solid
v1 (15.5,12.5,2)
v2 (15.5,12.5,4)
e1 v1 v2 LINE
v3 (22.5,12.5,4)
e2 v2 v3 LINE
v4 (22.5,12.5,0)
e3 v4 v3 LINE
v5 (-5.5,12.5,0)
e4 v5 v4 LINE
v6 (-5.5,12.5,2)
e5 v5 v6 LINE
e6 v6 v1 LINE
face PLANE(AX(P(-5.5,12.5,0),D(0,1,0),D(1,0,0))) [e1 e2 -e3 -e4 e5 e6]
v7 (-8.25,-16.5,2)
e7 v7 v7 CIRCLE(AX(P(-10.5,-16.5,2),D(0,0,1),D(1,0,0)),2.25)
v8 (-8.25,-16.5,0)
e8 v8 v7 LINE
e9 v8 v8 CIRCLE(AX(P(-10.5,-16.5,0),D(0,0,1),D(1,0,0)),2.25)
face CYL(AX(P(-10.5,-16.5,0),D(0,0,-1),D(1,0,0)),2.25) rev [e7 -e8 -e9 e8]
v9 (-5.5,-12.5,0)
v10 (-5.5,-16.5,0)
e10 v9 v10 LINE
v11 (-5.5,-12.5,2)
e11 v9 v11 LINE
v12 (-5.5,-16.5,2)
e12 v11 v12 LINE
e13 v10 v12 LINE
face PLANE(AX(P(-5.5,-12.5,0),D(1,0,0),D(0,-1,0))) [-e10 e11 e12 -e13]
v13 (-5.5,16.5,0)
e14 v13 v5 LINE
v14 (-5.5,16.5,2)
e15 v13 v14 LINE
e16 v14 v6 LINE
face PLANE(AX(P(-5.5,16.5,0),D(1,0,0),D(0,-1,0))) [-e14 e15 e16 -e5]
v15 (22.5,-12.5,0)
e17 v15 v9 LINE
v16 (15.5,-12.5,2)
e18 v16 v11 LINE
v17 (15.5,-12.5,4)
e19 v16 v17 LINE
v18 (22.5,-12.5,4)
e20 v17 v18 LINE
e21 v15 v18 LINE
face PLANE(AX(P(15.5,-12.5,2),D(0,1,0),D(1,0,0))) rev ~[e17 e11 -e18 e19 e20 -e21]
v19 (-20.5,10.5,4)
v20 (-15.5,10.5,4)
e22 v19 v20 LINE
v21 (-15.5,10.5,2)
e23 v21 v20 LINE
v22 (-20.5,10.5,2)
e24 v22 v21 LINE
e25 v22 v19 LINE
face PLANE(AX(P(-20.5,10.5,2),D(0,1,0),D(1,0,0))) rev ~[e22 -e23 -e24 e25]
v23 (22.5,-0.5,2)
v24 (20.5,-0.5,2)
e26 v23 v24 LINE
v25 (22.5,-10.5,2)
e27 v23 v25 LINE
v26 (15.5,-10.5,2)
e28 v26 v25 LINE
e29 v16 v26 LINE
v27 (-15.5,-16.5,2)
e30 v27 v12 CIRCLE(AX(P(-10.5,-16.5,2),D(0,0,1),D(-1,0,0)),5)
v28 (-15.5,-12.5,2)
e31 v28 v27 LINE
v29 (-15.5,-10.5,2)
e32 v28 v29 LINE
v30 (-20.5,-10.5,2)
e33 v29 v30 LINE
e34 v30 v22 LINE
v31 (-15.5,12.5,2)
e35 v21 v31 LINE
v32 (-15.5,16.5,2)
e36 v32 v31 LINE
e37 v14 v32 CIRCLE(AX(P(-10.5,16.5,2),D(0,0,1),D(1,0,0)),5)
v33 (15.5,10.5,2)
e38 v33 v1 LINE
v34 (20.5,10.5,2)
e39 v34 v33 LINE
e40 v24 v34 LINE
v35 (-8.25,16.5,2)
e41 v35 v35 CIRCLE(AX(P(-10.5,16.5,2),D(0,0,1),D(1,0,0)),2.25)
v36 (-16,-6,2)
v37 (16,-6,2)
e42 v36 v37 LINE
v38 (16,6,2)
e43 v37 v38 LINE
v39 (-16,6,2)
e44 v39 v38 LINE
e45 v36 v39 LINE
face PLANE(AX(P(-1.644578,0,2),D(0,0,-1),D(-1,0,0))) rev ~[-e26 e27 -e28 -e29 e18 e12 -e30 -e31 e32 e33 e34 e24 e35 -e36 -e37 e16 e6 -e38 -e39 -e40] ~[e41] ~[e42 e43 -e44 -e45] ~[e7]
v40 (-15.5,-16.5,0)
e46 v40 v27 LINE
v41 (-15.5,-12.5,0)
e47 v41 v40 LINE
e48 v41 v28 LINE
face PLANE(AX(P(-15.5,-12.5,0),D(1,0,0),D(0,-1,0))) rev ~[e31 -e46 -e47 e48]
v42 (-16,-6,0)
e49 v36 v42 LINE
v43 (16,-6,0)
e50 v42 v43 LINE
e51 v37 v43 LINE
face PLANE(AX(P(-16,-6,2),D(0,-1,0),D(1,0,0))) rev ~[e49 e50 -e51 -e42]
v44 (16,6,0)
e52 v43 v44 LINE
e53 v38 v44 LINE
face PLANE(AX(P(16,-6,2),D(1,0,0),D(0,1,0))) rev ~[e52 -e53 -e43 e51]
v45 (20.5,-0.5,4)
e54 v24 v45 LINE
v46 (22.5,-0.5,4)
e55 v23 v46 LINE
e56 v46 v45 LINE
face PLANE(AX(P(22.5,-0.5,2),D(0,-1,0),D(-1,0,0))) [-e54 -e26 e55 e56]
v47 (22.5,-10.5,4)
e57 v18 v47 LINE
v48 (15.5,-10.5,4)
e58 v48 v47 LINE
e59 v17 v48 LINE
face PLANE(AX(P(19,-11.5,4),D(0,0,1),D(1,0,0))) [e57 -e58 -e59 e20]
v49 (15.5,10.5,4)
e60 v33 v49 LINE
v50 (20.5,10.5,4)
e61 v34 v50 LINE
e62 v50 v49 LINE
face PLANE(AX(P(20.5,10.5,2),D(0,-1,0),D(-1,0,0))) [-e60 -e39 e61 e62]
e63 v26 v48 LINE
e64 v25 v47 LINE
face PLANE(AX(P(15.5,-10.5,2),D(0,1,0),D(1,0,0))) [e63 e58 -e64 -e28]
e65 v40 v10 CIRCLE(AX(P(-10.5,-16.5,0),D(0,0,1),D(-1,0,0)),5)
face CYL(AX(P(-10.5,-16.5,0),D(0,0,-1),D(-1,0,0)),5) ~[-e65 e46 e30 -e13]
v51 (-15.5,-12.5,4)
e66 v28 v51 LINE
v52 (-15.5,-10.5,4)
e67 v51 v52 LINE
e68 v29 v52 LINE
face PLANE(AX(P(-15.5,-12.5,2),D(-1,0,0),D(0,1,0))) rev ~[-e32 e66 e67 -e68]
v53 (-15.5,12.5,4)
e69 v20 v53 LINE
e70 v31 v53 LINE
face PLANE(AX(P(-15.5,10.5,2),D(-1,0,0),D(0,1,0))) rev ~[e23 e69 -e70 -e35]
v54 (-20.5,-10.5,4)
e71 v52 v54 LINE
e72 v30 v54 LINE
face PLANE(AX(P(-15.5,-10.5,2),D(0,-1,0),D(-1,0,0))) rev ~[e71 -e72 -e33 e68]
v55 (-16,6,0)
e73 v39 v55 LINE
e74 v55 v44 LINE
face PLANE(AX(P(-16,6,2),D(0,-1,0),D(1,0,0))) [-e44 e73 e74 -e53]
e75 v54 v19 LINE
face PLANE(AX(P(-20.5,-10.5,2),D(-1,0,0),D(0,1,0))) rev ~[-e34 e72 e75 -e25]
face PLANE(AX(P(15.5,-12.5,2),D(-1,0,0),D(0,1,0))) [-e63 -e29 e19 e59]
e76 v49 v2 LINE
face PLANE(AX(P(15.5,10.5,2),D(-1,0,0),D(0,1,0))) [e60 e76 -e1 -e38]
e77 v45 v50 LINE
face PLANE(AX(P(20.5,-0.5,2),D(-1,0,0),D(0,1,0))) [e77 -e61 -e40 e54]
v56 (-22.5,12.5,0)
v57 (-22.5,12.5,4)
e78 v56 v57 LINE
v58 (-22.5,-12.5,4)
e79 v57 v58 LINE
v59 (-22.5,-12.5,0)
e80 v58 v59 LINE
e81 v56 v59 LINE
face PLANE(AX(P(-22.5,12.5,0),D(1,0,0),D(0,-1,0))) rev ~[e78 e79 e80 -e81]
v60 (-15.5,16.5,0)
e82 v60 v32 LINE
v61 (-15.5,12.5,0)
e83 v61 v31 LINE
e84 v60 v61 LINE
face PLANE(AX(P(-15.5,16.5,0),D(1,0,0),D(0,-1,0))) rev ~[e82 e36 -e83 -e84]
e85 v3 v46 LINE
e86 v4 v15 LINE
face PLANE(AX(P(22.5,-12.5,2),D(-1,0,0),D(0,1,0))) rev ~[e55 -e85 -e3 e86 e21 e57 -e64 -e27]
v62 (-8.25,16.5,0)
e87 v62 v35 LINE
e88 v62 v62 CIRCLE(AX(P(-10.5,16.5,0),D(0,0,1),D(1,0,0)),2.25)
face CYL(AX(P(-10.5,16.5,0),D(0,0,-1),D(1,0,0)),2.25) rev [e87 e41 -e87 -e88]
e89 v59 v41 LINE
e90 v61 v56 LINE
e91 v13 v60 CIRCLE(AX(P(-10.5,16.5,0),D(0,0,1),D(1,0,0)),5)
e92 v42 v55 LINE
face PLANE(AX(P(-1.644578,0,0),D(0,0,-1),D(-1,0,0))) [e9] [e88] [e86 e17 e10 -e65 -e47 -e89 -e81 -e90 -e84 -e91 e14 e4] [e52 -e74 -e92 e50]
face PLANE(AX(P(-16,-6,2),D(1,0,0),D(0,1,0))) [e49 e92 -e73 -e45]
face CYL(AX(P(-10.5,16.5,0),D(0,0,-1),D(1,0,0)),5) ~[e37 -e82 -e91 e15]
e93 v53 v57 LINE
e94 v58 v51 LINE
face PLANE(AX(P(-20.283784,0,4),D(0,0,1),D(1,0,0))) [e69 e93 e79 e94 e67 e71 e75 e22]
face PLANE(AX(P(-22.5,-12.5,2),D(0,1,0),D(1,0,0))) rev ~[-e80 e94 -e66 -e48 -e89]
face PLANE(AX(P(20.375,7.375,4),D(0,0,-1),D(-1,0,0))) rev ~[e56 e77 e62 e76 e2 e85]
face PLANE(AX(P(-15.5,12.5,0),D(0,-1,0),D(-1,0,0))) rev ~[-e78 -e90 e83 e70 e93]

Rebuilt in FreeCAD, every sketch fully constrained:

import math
import FreeCAD as App
import Part
import Sketcher

V = App.Vector

doc = App.newDocument("Part")
body = doc.addObject("PartDesign::Body", "Body")

sketch1 = body.newObject("Sketcher::SketchObject", "Sketch")
sketch1.AttachmentSupport = (doc.getObject("XY_Plane"), [""])
sketch1.MapMode = "FlatFace"
sketch1.addGeometry(Part.LineSegment(V(22.5, -12.5, 0), V(22.5, 12.5, 0)), False)
sketch1.addGeometry(Part.LineSegment(V(22.5, 12.5, 0), V(-5.5, 12.5, 0)), False)
sketch1.addGeometry(Part.LineSegment(V(-5.5, 12.5, 0), V(-5.5, 16.5, 0)), False)
sketch1.addGeometry(Part.ArcOfCircle(Part.Circle(V(-10.5, 16.5, 0), V(0, 0, 1), 5), math.radians(0), math.radians(180)), False)
sketch1.addGeometry(Part.LineSegment(V(-15.5, 16.5, 0), V(-15.5, 12.5, 0)), False)
sketch1.addGeometry(Part.LineSegment(V(-15.5, 12.5, 0), V(-22.5, 12.5, 0)), False)
sketch1.addGeometry(Part.LineSegment(V(-22.5, 12.5, 0), V(-22.5, -12.5, 0)), False)
sketch1.addGeometry(Part.LineSegment(V(-22.5, -12.5, 0), V(-15.5, -12.5, 0)), False)
sketch1.addGeometry(Part.LineSegment(V(-15.5, -12.5, 0), V(-15.5, -16.5, 0)), False)
sketch1.addGeometry(Part.ArcOfCircle(Part.Circle(V(-10.5, -16.5, 0), V(0, 0, 1), 5), math.radians(180), math.radians(360)), False)
sketch1.addGeometry(Part.LineSegment(V(-5.5, -16.5, 0), V(-5.5, -12.5, 0)), False)
sketch1.addGeometry(Part.LineSegment(V(-5.5, -12.5, 0), V(22.5, -12.5, 0)), False)
sketch1.addGeometry(Part.Circle(V(-10.5, -16.5, 0), V(0, 0, 1), 2.25), False)
sketch1.addGeometry(Part.Circle(V(-10.5, 16.5, 0), V(0, 0, 1), 2.25), False)
sketch1.addConstraint(Sketcher.Constraint("Coincident", 0, 2, 1, 1))
sketch1.addConstraint(Sketcher.Constraint("Coincident", 1, 2, 2, 1))
sketch1.addConstraint(Sketcher.Constraint("Tangent", 2, 2, 3, 1))
sketch1.addConstraint(Sketcher.Constraint("Tangent", 3, 2, 4, 1))
sketch1.addConstraint(Sketcher.Constraint("Coincident", 4, 2, 5, 1))
sketch1.addConstraint(Sketcher.Constraint("Coincident", 5, 2, 6, 1))
sketch1.addConstraint(Sketcher.Constraint("Coincident", 6, 2, 7, 1))
sketch1.addConstraint(Sketcher.Constraint("Coincident", 7, 2, 8, 1))
sketch1.addConstraint(Sketcher.Constraint("Tangent", 8, 2, 9, 1))
sketch1.addConstraint(Sketcher.Constraint("Tangent", 9, 2, 10, 1))
sketch1.addConstraint(Sketcher.Constraint("Coincident", 10, 2, 11, 1))
sketch1.addConstraint(Sketcher.Constraint("Coincident", 11, 2, 0, 1))
sketch1.addConstraint(Sketcher.Constraint("Vertical", 0))
sketch1.addConstraint(Sketcher.Constraint("Horizontal", 1))
sketch1.addConstraint(Sketcher.Constraint("Vertical", 2))
sketch1.addConstraint(Sketcher.Constraint("Vertical", 4))
sketch1.addConstraint(Sketcher.Constraint("Horizontal", 5))
sketch1.addConstraint(Sketcher.Constraint("Vertical", 6))
sketch1.addConstraint(Sketcher.Constraint("Horizontal", 7))
sketch1.addConstraint(Sketcher.Constraint("Vertical", 8))
sketch1.addConstraint(Sketcher.Constraint("Vertical", 10))
sketch1.addConstraint(Sketcher.Constraint("Horizontal", 11))
sketch1.addConstraint(Sketcher.Constraint("Coincident", 12, 3, 9, 3))
sketch1.addConstraint(Sketcher.Constraint("Coincident", 13, 3, 3, 3))
sketch1.addConstraint(Sketcher.Constraint("Equal", 3, 9))
sketch1.addConstraint(Sketcher.Constraint("Equal", 12, 13))
sketch1.addConstraint(Sketcher.Constraint("Symmetric", 0, 2, 6, 2, -1, 1))
sketch1.addConstraint(Sketcher.Constraint("Symmetric", 3, 3, 9, 3, -1))
sketch1.addConstraint(Sketcher.Constraint("Horizontal", 1, 2, 4, 2))
sketch1.addConstraint(Sketcher.Constraint("Horizontal", 7, 2, 10, 2))
sketch1.addConstraint(Sketcher.Constraint("Radius", 3, 5.0))
sketch1.addConstraint(Sketcher.Constraint("Diameter", 12, 4.5))
sketch1.addConstraint(Sketcher.Constraint("DistanceX", 1, 2, 1, 1, 28.0))
sketch1.addConstraint(Sketcher.Constraint("DistanceX", 5, 2, 5, 1, 7.0))
sketch1.addConstraint(Sketcher.Constraint("DistanceY", 0, 1, 0, 2, 25.0))
sketch1.addConstraint(Sketcher.Constraint("DistanceY", 2, 1, 2, 2, 4.0))
pad1 = body.newObject("PartDesign::Pad", "Pad")
pad1.Profile = sketch1
pad1.Length = 2

sketch2 = body.newObject("Sketcher::SketchObject", "Sketch001")
sketch2.AttachmentSupport = (doc.getObject("XY_Plane"), [""])
sketch2.MapMode = "FlatFace"
sketch2.AttachmentOffset = App.Placement(V(0, 0, 2), App.Rotation())
sketch2.addGeometry(Part.LineSegment(V(15.5, -10.5, 0), V(15.5, -12.5, 0)), False)
sketch2.addGeometry(Part.LineSegment(V(15.5, -12.5, 0), V(22.5, -12.5, 0)), False)
sketch2.addGeometry(Part.LineSegment(V(22.5, -12.5, 0), V(22.5, -10.5, 0)), False)
sketch2.addGeometry(Part.LineSegment(V(22.5, -10.5, 0), V(15.5, -10.5, 0)), False)
sketch2.addGeometry(Part.LineSegment(V(15.5, 10.5, 0), V(20.5, 10.5, 0)), False)
sketch2.addGeometry(Part.LineSegment(V(20.5, 10.5, 0), V(20.5, -0.5, 0)), False)
sketch2.addGeometry(Part.LineSegment(V(20.5, -0.5, 0), V(22.5, -0.5, 0)), False)
sketch2.addGeometry(Part.LineSegment(V(22.5, -0.5, 0), V(22.5, 12.5, 0)), False)
sketch2.addGeometry(Part.LineSegment(V(22.5, 12.5, 0), V(15.5, 12.5, 0)), False)
sketch2.addGeometry(Part.LineSegment(V(15.5, 12.5, 0), V(15.5, 10.5, 0)), False)
sketch2.addGeometry(Part.LineSegment(V(-15.5, 12.5, 0), V(-22.5, 12.5, 0)), False)
sketch2.addGeometry(Part.LineSegment(V(-22.5, 12.5, 0), V(-22.5, -12.5, 0)), False)
sketch2.addGeometry(Part.LineSegment(V(-22.5, -12.5, 0), V(-15.5, -12.5, 0)), False)
sketch2.addGeometry(Part.LineSegment(V(-15.5, -12.5, 0), V(-15.5, -10.5, 0)), False)
sketch2.addGeometry(Part.LineSegment(V(-15.5, -10.5, 0), V(-20.5, -10.5, 0)), False)
sketch2.addGeometry(Part.LineSegment(V(-20.5, -10.5, 0), V(-20.5, 10.5, 0)), False)
sketch2.addGeometry(Part.LineSegment(V(-20.5, 10.5, 0), V(-15.5, 10.5, 0)), False)
sketch2.addGeometry(Part.LineSegment(V(-15.5, 10.5, 0), V(-15.5, 12.5, 0)), False)
sketch2.addConstraint(Sketcher.Constraint("Coincident", 0, 2, 1, 1))
sketch2.addConstraint(Sketcher.Constraint("Coincident", 1, 2, 2, 1))
sketch2.addConstraint(Sketcher.Constraint("Coincident", 2, 2, 3, 1))
sketch2.addConstraint(Sketcher.Constraint("Coincident", 3, 2, 0, 1))
sketch2.addConstraint(Sketcher.Constraint("Coincident", 4, 2, 5, 1))
sketch2.addConstraint(Sketcher.Constraint("Coincident", 5, 2, 6, 1))
sketch2.addConstraint(Sketcher.Constraint("Coincident", 6, 2, 7, 1))
sketch2.addConstraint(Sketcher.Constraint("Coincident", 7, 2, 8, 1))
sketch2.addConstraint(Sketcher.Constraint("Coincident", 8, 2, 9, 1))
sketch2.addConstraint(Sketcher.Constraint("Coincident", 9, 2, 4, 1))
sketch2.addConstraint(Sketcher.Constraint("Coincident", 10, 2, 11, 1))
sketch2.addConstraint(Sketcher.Constraint("Coincident", 11, 2, 12, 1))
sketch2.addConstraint(Sketcher.Constraint("Coincident", 12, 2, 13, 1))
sketch2.addConstraint(Sketcher.Constraint("Coincident", 13, 2, 14, 1))
sketch2.addConstraint(Sketcher.Constraint("Coincident", 14, 2, 15, 1))
sketch2.addConstraint(Sketcher.Constraint("Coincident", 15, 2, 16, 1))
sketch2.addConstraint(Sketcher.Constraint("Coincident", 16, 2, 17, 1))
sketch2.addConstraint(Sketcher.Constraint("Coincident", 17, 2, 10, 1))
sketch2.addConstraint(Sketcher.Constraint("Vertical", 0))
sketch2.addConstraint(Sketcher.Constraint("Horizontal", 1))
sketch2.addConstraint(Sketcher.Constraint("Vertical", 2))
sketch2.addConstraint(Sketcher.Constraint("Horizontal", 3))
sketch2.addConstraint(Sketcher.Constraint("Horizontal", 4))
sketch2.addConstraint(Sketcher.Constraint("Vertical", 5))
sketch2.addConstraint(Sketcher.Constraint("Horizontal", 6))
sketch2.addConstraint(Sketcher.Constraint("Vertical", 7))
sketch2.addConstraint(Sketcher.Constraint("Horizontal", 8))
sketch2.addConstraint(Sketcher.Constraint("Vertical", 9))
sketch2.addConstraint(Sketcher.Constraint("Horizontal", 10))
sketch2.addConstraint(Sketcher.Constraint("Vertical", 11))
sketch2.addConstraint(Sketcher.Constraint("Horizontal", 12))
sketch2.addConstraint(Sketcher.Constraint("Vertical", 13))
sketch2.addConstraint(Sketcher.Constraint("Horizontal", 14))
sketch2.addConstraint(Sketcher.Constraint("Vertical", 15))
sketch2.addConstraint(Sketcher.Constraint("Horizontal", 16))
sketch2.addConstraint(Sketcher.Constraint("Vertical", 17))
sketch2.addConstraint(Sketcher.Constraint("Symmetric", 1, 2, 10, 2, -1, 1))
sketch2.addConstraint(Sketcher.Constraint("Symmetric", 7, 2, 11, 2, -1, 1))
sketch2.addConstraint(Sketcher.Constraint("Symmetric", 9, 2, 13, 2, -1, 1))
sketch2.addConstraint(Sketcher.Constraint("Symmetric", 3, 2, 16, 2, -1, 1))
sketch2.addConstraint(Sketcher.Constraint("Symmetric", 0, 2, 12, 2, -2))
sketch2.addConstraint(Sketcher.Constraint("Symmetric", 4, 2, 15, 2, -2))
sketch2.addConstraint(Sketcher.Constraint("Equal", 6, 0))
sketch2.addConstraint(Sketcher.Constraint("DistanceX", 1, 1, 1, 2, 7.0))
sketch2.addConstraint(Sketcher.Constraint("DistanceX", 4, 1, 4, 2, 5.0))
sketch2.addConstraint(Sketcher.Constraint("DistanceY", 5, 2, 5, 1, 11.0))
sketch2.addConstraint(Sketcher.Constraint("DistanceY", 11, 2, 11, 1, 25.0))
sketch2.addConstraint(Sketcher.Constraint("DistanceX", 10, 2, 8, 2, 38.0))
pad2 = body.newObject("PartDesign::Pad", "Pad001")
pad2.Profile = sketch2
pad2.Length = 2

sketch3 = body.newObject("Sketcher::SketchObject", "Sketch002")
sketch3.AttachmentSupport = (doc.getObject("XY_Plane"), [""])
sketch3.MapMode = "FlatFace"
sketch3.AttachmentOffset = App.Placement(V(0, 0, 2), App.Rotation())
sketch3.addGeometry(Part.LineSegment(V(-16, 6, 0), V(-16, -6, 0)), False)
sketch3.addGeometry(Part.LineSegment(V(-16, -6, 0), V(16, -6, 0)), False)
sketch3.addGeometry(Part.LineSegment(V(16, -6, 0), V(16, 6, 0)), False)
sketch3.addGeometry(Part.LineSegment(V(16, 6, 0), V(-16, 6, 0)), False)
sketch3.addConstraint(Sketcher.Constraint("Coincident", 0, 2, 1, 1))
sketch3.addConstraint(Sketcher.Constraint("Coincident", 1, 2, 2, 1))
sketch3.addConstraint(Sketcher.Constraint("Coincident", 2, 2, 3, 1))
sketch3.addConstraint(Sketcher.Constraint("Coincident", 3, 2, 0, 1))
sketch3.addConstraint(Sketcher.Constraint("Vertical", 0))
sketch3.addConstraint(Sketcher.Constraint("Horizontal", 1))
sketch3.addConstraint(Sketcher.Constraint("Vertical", 2))
sketch3.addConstraint(Sketcher.Constraint("Horizontal", 3))
sketch3.addConstraint(Sketcher.Constraint("Symmetric", 0, 2, 2, 2, -1, 1))
sketch3.addConstraint(Sketcher.Constraint("DistanceX", 1, 1, 1, 2, 32.0))
sketch3.addConstraint(Sketcher.Constraint("DistanceY", 0, 2, 0, 1, 12.0))
pocket1 = body.newObject("PartDesign::Pocket", "Pocket")
pocket1.Profile = sketch3
pocket1.Length = 2

doc.recompute()
